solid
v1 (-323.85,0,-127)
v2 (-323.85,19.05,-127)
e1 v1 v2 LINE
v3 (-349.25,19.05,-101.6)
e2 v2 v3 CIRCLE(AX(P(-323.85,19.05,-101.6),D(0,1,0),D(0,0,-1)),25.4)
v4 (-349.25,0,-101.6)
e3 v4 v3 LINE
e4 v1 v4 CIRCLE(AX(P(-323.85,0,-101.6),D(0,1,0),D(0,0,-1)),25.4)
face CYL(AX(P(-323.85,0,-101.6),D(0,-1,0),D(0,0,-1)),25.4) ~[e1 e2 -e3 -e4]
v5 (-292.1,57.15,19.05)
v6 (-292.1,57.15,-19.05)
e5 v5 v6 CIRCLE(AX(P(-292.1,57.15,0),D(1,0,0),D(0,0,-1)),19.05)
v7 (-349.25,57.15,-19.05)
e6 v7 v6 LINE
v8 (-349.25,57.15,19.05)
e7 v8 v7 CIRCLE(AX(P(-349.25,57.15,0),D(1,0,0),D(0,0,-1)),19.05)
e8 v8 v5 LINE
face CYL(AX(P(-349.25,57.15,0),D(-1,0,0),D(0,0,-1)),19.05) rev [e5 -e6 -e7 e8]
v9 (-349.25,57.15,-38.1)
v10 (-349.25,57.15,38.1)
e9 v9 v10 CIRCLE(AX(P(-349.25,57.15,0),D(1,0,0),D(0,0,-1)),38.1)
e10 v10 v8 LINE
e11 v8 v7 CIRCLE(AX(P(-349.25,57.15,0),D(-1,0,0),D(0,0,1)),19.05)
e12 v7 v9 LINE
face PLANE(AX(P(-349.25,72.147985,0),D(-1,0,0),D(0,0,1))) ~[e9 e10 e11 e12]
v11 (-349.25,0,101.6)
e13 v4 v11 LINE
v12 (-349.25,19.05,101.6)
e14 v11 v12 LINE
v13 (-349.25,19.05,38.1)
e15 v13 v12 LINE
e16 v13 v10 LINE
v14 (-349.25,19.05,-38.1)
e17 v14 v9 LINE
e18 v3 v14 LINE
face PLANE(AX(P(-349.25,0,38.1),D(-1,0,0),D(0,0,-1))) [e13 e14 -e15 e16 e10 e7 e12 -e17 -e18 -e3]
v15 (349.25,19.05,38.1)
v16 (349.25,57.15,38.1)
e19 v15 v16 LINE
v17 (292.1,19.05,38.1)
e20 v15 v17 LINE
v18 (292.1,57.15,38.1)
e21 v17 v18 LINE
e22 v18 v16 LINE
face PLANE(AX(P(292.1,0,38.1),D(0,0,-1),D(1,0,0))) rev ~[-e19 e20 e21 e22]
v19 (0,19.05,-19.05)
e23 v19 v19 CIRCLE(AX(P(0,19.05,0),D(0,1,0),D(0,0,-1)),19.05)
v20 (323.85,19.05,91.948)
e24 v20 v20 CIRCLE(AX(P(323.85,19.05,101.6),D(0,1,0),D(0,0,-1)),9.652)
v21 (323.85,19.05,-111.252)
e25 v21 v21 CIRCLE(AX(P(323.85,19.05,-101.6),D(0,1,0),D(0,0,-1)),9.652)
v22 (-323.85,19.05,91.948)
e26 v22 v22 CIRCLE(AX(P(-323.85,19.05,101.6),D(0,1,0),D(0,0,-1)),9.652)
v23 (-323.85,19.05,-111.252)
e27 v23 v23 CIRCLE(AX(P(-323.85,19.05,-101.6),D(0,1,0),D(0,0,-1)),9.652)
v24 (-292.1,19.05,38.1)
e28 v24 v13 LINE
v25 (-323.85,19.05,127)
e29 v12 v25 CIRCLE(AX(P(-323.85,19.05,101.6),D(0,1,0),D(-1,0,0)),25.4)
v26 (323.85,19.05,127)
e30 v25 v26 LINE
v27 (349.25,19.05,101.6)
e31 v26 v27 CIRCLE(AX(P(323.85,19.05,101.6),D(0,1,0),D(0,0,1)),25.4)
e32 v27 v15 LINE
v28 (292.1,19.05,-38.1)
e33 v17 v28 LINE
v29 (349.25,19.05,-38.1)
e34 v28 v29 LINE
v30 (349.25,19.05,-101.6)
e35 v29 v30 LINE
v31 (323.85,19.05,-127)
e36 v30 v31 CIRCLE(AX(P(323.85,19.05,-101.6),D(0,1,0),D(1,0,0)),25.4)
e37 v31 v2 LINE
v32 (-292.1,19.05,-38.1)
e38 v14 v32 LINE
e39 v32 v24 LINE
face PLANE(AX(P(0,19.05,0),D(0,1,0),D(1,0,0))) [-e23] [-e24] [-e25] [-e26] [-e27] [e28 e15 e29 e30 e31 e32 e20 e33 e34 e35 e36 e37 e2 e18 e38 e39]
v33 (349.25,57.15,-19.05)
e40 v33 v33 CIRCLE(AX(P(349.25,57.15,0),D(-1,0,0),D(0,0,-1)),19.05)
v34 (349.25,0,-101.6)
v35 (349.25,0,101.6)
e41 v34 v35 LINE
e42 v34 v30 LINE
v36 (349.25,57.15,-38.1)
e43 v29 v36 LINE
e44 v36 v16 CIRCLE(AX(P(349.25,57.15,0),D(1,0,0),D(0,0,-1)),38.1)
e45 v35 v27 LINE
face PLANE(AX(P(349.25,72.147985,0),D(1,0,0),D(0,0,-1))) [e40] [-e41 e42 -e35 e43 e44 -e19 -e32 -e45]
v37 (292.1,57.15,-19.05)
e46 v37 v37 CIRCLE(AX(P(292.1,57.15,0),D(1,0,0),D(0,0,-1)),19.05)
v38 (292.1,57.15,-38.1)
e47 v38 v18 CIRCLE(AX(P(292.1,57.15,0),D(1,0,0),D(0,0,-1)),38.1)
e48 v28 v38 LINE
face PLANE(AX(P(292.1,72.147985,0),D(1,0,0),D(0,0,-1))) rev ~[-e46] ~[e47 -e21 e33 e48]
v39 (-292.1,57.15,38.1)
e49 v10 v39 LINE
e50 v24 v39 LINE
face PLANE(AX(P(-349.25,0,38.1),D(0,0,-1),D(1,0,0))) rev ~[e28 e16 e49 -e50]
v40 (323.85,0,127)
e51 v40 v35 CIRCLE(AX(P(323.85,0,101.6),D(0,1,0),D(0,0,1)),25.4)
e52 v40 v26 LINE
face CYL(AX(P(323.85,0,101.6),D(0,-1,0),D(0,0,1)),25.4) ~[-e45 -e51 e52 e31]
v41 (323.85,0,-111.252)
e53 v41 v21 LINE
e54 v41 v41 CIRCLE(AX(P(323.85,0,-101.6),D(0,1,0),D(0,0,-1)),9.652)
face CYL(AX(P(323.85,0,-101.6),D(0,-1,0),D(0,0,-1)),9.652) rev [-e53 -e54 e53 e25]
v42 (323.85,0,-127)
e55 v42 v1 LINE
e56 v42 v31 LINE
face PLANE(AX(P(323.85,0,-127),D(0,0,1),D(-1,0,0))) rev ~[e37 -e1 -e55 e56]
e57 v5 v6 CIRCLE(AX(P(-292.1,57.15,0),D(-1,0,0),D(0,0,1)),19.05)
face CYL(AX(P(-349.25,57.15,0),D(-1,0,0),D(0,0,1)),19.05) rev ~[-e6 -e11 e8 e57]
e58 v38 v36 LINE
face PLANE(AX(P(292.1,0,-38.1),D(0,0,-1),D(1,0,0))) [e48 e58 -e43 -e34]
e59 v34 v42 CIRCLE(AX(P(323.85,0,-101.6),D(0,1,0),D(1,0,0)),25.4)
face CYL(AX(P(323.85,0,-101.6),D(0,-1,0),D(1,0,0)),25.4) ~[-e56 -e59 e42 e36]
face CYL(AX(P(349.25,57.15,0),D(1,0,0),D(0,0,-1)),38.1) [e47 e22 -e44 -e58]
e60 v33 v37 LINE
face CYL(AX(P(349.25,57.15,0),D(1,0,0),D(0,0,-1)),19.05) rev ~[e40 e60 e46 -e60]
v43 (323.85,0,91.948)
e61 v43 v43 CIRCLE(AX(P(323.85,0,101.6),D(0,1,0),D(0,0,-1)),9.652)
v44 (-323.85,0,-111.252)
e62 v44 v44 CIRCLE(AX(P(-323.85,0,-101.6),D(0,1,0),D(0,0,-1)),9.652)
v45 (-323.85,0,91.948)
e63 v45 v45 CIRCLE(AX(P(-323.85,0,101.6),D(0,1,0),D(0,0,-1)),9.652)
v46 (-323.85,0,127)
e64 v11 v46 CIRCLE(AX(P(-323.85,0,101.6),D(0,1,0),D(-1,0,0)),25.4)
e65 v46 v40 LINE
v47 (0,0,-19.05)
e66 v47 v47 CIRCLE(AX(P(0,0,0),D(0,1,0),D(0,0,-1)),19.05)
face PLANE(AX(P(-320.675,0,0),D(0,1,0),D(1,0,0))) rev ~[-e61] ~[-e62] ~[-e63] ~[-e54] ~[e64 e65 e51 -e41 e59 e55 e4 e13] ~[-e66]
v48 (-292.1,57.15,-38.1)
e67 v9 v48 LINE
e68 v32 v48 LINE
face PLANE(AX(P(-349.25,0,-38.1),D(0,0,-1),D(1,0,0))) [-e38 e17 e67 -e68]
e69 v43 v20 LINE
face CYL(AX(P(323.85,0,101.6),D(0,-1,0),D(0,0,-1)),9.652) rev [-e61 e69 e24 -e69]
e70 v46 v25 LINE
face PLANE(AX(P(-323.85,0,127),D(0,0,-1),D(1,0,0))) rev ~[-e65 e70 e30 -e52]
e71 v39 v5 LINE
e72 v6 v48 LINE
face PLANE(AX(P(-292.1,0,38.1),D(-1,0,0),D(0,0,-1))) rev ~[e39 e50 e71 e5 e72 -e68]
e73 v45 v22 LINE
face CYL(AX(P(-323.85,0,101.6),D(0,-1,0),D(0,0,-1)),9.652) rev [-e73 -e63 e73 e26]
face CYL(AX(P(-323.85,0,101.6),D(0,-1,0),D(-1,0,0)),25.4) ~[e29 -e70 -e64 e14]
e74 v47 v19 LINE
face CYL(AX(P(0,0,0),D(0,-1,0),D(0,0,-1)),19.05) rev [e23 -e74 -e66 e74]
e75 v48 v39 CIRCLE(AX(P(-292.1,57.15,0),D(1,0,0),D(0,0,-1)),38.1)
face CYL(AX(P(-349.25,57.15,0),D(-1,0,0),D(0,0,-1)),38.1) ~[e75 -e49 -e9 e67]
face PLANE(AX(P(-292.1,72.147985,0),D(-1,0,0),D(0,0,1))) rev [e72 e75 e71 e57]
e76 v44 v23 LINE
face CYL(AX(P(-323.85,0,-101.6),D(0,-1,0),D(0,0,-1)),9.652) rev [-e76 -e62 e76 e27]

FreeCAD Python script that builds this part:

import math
import FreeCAD as App
import Part
import Sketcher
from FreeCAD import Vector
Q = App.Units.Quantity

doc = App.newDocument("Part")
body = doc.addObject("PartDesign::Body", "Body")

sketch1 = body.newObject("Sketcher::SketchObject", "Sketch")
sketch1.AttachmentSupport = (doc.getObject("XZ_Plane"), [""])
sketch1.MapMode = "FlatFace"
sketch1.addGeometry([
    Part.ArcOfCircle(Part.Circle(Vector(-324, 102, 0), Vector(0, 0, 1), 25), math.radians(90), math.radians(180)),
    Part.LineSegment(Vector(-324, 127, 0), Vector(324, 127, 0)),
    Part.ArcOfCircle(Part.Circle(Vector(324, 102, 0), Vector(0, 0, 1), 25), math.radians(0), math.radians(90)),
    Part.LineSegment(Vector(349, 102, 0), Vector(349, 38, 0)),
    Part.LineSegment(Vector(349, 38, 0), Vector(292, 38, 0)),
    Part.LineSegment(Vector(292, 38, 0), Vector(292, -38, 0)),
    Part.LineSegment(Vector(292, -38, 0), Vector(349, -38, 0)),
    Part.LineSegment(Vector(349, -38, 0), Vector(349, -102, 0)),
    Part.ArcOfCircle(Part.Circle(Vector(324, -102, 0), Vector(0, 0, 1), 25), math.radians(-90), math.radians(0)),
    Part.LineSegment(Vector(324, -127, 0), Vector(-324, -127, 0)),
    Part.ArcOfCircle(Part.Circle(Vector(-324, -102, 0), Vector(0, 0, 1), 25), math.radians(180), math.radians(270)),
    Part.LineSegment(Vector(-349, -102, 0), Vector(-349, -38, 0)),
    Part.LineSegment(Vector(-349, -38, 0), Vector(-292, -38, 0)),
    Part.LineSegment(Vector(-292, -38, 0), Vector(-292, 38, 0)),
    Part.LineSegment(Vector(-292, 38, 0), Vector(-349, 38, 0)),
    Part.LineSegment(Vector(-349, 38, 0), Vector(-349, 102, 0)),
    Part.Circle(Vector(-324, 102, 0), Vector(0, 0, 1), 10),
    Part.Circle(Vector(324, 102, 0), Vector(0, 0, 1), 10),
    Part.Circle(Vector(0, 0, 0), Vector(0, 0, 1), 19),
    Part.Circle(Vector(-324, -102, 0), Vector(0, 0, 1), 10),
    Part.Circle(Vector(324, -102, 0), Vector(0, 0, 1), 10),
], False)
sketch1.addConstraint([
    Sketcher.Constraint("Tangent", 0, 1, 1, 1),
    Sketcher.Constraint("Tangent", 1, 2, 2, 2),
    Sketcher.Constraint("Tangent", 2, 1, 3, 1),
    Sketcher.Constraint("Coincident", 3, 2, 4, 1),
    Sketcher.Constraint("Coincident", 4, 2, 5, 1),
    Sketcher.Constraint("Coincident", 5, 2, 6, 1),
    Sketcher.Constraint("Coincident", 6, 2, 7, 1),
    Sketcher.Constraint("Tangent", 7, 2, 8, 2),
    Sketcher.Constraint("Tangent", 8, 1, 9, 1),
    Sketcher.Constraint("Tangent", 9, 2, 10, 2),
    Sketcher.Constraint("Tangent", 10, 1, 11, 1),
    Sketcher.Constraint("Coincident", 11, 2, 12, 1),
    Sketcher.Constraint("Coincident", 12, 2, 13, 1),
    Sketcher.Constraint("Coincident", 13, 2, 14, 1),
    Sketcher.Constraint("Coincident", 14, 2, 15, 1),
    Sketcher.Constraint("Tangent", 15, 2, 0, 2),
    Sketcher.Constraint("Horizontal", 1),
    Sketcher.Constraint("Vertical", 3),
    Sketcher.Constraint("Horizontal", 4),
    Sketcher.Constraint("Vertical", 5),
    Sketcher.Constraint("Horizontal", 6),
    Sketcher.Constraint("Vertical", 7),
    Sketcher.Constraint("Horizontal", 9),
    Sketcher.Constraint("Vertical", 11),
    Sketcher.Constraint("Horizontal", 12),
    Sketcher.Constraint("Vertical", 13),
    Sketcher.Constraint("Horizontal", 14),
    Sketcher.Constraint("Vertical", 15),
    Sketcher.Constraint("Coincident", 18, 3, -1, 1),
    Sketcher.Constraint("Coincident", 16, 3, 0, 3),
    Sketcher.Constraint("Coincident", 17, 3, 2, 3),
    Sketcher.Constraint("Coincident", 19, 3, 10, 3),
    Sketcher.Constraint("Coincident", 20, 3, 8, 3),
    Sketcher.Constraint("Equal", 0, 2),
    Sketcher.Constraint("Equal", 2, 8),
    Sketcher.Constraint("Equal", 8, 10),
    Sketcher.Constraint("Equal", 16, 17),
    Sketcher.Constraint("Equal", 17, 19),
    Sketcher.Constraint("Equal", 19, 20),
    Sketcher.Constraint("Symmetric", 0, 3, 8, 3, -1, 1),
    Sketcher.Constraint("Symmetric", 3, 2, 11, 2, -1, 1),
    Sketcher.Constraint("Symmetric", 5, 2, 13, 2, -1, 1),
    Sketcher.Constraint("Symmetric", 6, 2, 11, 2, -2),
    Sketcher.Constraint("Radius", 0, Q("1 in")),
    Sketcher.Constraint("Diameter", 18, Q("1.5 in")),
    Sketcher.Constraint("Diameter", 16, Q("0.76 in")),
    Sketcher.Constraint("DistanceY", 5, 2, 5, 1, Q("3 in")),
    Sketcher.Constraint("DistanceX", 1, 1, 1, 2, Q("25.5 in")),
    Sketcher.Constraint("DistanceY", 3, 2, 3, 1, Q("2.5 in")),
    Sketcher.Constraint("DistanceX", 4, 2, 4, 1, Q("2.25 in")),
])
pad1 = body.newObject("PartDesign::Pad", "Pad")
pad1.Profile = sketch1
pad1.Length = Q("0.75 in")
pad1.Reversed = True

sketch2 = body.newObject("Sketcher::SketchObject", "Sketch001")
sketch2.AttachmentSupport = (doc.getObject("XZ_Plane"), [""])
sketch2.MapMode = "FlatFace"
sketch2.addGeometry([
    Part.LineSegment(Vector(-349, -38, 0), Vector(-349, 38, 0)),
    Part.LineSegment(Vector(-349, 38, 0), Vector(-292, 38, 0)),
    Part.LineSegment(Vector(-292, 38, 0), Vector(-292, -38, 0)),
    Part.LineSegment(Vector(-292, -38, 0), Vector(-349, -38, 0)),
    Part.LineSegment(Vector(292, -38, 0), Vector(292, 38, 0)),
    Part.LineSegment(Vector(292, 38, 0), Vector(349, 38, 0)),
    Part.LineSegment(Vector(349, 38, 0), Vector(349, -38, 0)),
    Part.LineSegment(Vector(349, -38, 0), Vector(292, -38, 0)),
], False)
sketch2.addConstraint([
    Sketcher.Constraint("Coincident", 0, 2, 1, 1),
    Sketcher.Constraint("Coincident", 1, 2, 2, 1),
    Sketcher.Constraint("Coincident", 2, 2, 3, 1),
    Sketcher.Constraint("Coincident", 3, 2, 0, 1),
    Sketcher.Constraint("Coincident", 4, 2, 5, 1),
    Sketcher.Constraint("Coincident", 5, 2, 6, 1),
    Sketcher.Constraint("Coincident", 6, 2, 7, 1),
    Sketcher.Constraint("Coincident", 7, 2, 4, 1),
    Sketcher.Constraint("Vertical", 0),
    Sketcher.Constraint("Horizontal", 1),
    Sketcher.Constraint("Vertical", 2),
    Sketcher.Constraint("Horizontal", 3),
    Sketcher.Constraint("Vertical", 4),
    Sketcher.Constraint("Horizontal", 5),
    Sketcher.Constraint("Vertical", 6),
    Sketcher.Constraint("Horizontal", 7),
    Sketcher.Constraint("Symmetric", 2, 2, 4, 2, -1, 1),
    Sketcher.Constraint("Symmetric", 0, 2, 6, 2, -1, 1),
    Sketcher.Constraint("Horizontal", 1, 2, 4, 2),
    Sketcher.Constraint("DistanceY", 0, 1, 0, 2, Q("3 in")),
    Sketcher.Constraint("DistanceX", 1, 2, 4, 2, Q("23 in")),
    Sketcher.Constraint("DistanceX", 1, 1, 1, 2, Q("2.25 in")),
])
pad2 = body.newObject("PartDesign::Pad", "Pad001")
pad2.Profile = sketch2
pad2.Length = Q("2.25 in")
pad2.Reversed = True

sketch3 = body.newObject("Sketcher::SketchObject", "Sketch002")
sketch3.AttachmentSupport = (doc.getObject("YZ_Plane"), [""])
sketch3.MapMode = "FlatFace"
sketch3.AttachmentOffset = App.Placement(Vector(0, 0, 13.75 * 25.4), App.Rotation())
sketch3.addGeometry([
    Part.LineSegment(Vector(57, -19, 0), Vector(57, -38, 0)),
    Part.ArcOfCircle(Part.Circle(Vector(57, 0, 0), Vector(0, 0, 1), 38), math.radians(-90), math.radians(90)),
    Part.LineSegment(Vector(57, 38, 0), Vector(57, 19, 0)),
    Part.ArcOfCircle(Part.Circle(Vector(57, 0, 0), Vector(0, 0, 1), 19), math.radians(-90), math.radians(90)),
], False)
sketch3.addConstraint([
    Sketcher.Constraint("Coincident", 0, 2, 1, 1),
    Sketcher.Constraint("Coincident", 1, 2, 2, 1),
    Sketcher.Constraint("Coincident", 2, 2, 3, 2),
    Sketcher.Constraint("Coincident", 3, 1, 0, 1),
    Sketcher.Constraint("Vertical", 0),
    Sketcher.Constraint("Vertical", 2),
    Sketcher.Constraint("Coincident", 3, 3, 1, 3),
    Sketcher.Constraint("Symmetric", 0, 2, 1, 2, -1),
    Sketcher.Constraint("Vertical", 3, 3, 0, 2),
    Sketcher.Constraint("Radius", 1, Q("1.5 in")),
    Sketcher.Constraint("Radius", 3, Q("0.75 in")),
    Sketcher.Constraint("DistanceX", -1, 1, 1, 3, Q("2.25 in")),
])
pad3 = body.newObject("PartDesign::Pad", "Pad002")
pad3.Profile = sketch3
pad3.Length = Q("2.25 in")
pad3.Reversed = True

sketch4 = body.newObject("Sketcher::SketchObject", "Sketch003")
sketch4.AttachmentSupport = (doc.getObject("YZ_Plane"), [""])
sketch4.MapMode = "FlatFace"
sketch4.AttachmentOffset = App.Placement(Vector(0, 0, 13.75 * 25.4), App.Rotation())
sketch4.addGeometry(Part.Circle(Vector(57, 0, 0), Vector(0, 0, 1), 19), False)
sketch4.addConstraint([
    Sketcher.Constraint("PointOnObject", 0, 3, -1),
    Sketcher.Constraint("Diameter", 0, Q("1.5 in")),
    Sketcher.Constraint("DistanceX", -1, 1, 0, 3, Q("2.25 in")),
])
pocket1 = body.newObject("PartDesign::Pocket", "Pocket")
pocket1.Profile = sketch4
pocket1.Length = Q("2.25 in")
doc.recompute()

mirrored = body.newObject("PartDesign::Mirrored", "Mirrored")
mirrored.Originals = [pad3, pocket1]
mirrored.MirrorPlane = (doc.getObject("YZ_Plane"), [""])
body.Tip = mirrored

doc.recompute()
